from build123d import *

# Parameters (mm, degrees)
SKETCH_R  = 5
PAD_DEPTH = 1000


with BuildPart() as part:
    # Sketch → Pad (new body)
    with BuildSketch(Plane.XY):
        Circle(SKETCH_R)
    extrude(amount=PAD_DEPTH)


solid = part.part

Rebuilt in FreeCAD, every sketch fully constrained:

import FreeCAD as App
import Part
import Sketcher

V = App.Vector
Q = App.Units.Quantity

doc = App.newDocument("Part")
body = doc.addObject("PartDesign::Body", "Body")

# Sketch on XY plane
sketch1 = doc.addObject("Sketcher::SketchObject", "Sketch")
body.addObject(sketch1)
sketch1.AttachmentSupport = (doc.XY_Plane, [""])
sketch1.MapMode = "FlatFace"
sketch1.addGeometry(Part.Circle(V(0, 0, 0), V(0, 0, 1), 5), False)
sketch1.addConstraint([
    Sketcher.Constraint("Coincident", 0, 3, -1, 1),
    Sketcher.Constraint("Diameter", 0, Q("10 mm")),
])
pad1 = doc.addObject("PartDesign::Pad", "Pad")
body.addObject(pad1)
pad1.Profile = sketch1
pad1.Length = 1000

doc.recompute()
